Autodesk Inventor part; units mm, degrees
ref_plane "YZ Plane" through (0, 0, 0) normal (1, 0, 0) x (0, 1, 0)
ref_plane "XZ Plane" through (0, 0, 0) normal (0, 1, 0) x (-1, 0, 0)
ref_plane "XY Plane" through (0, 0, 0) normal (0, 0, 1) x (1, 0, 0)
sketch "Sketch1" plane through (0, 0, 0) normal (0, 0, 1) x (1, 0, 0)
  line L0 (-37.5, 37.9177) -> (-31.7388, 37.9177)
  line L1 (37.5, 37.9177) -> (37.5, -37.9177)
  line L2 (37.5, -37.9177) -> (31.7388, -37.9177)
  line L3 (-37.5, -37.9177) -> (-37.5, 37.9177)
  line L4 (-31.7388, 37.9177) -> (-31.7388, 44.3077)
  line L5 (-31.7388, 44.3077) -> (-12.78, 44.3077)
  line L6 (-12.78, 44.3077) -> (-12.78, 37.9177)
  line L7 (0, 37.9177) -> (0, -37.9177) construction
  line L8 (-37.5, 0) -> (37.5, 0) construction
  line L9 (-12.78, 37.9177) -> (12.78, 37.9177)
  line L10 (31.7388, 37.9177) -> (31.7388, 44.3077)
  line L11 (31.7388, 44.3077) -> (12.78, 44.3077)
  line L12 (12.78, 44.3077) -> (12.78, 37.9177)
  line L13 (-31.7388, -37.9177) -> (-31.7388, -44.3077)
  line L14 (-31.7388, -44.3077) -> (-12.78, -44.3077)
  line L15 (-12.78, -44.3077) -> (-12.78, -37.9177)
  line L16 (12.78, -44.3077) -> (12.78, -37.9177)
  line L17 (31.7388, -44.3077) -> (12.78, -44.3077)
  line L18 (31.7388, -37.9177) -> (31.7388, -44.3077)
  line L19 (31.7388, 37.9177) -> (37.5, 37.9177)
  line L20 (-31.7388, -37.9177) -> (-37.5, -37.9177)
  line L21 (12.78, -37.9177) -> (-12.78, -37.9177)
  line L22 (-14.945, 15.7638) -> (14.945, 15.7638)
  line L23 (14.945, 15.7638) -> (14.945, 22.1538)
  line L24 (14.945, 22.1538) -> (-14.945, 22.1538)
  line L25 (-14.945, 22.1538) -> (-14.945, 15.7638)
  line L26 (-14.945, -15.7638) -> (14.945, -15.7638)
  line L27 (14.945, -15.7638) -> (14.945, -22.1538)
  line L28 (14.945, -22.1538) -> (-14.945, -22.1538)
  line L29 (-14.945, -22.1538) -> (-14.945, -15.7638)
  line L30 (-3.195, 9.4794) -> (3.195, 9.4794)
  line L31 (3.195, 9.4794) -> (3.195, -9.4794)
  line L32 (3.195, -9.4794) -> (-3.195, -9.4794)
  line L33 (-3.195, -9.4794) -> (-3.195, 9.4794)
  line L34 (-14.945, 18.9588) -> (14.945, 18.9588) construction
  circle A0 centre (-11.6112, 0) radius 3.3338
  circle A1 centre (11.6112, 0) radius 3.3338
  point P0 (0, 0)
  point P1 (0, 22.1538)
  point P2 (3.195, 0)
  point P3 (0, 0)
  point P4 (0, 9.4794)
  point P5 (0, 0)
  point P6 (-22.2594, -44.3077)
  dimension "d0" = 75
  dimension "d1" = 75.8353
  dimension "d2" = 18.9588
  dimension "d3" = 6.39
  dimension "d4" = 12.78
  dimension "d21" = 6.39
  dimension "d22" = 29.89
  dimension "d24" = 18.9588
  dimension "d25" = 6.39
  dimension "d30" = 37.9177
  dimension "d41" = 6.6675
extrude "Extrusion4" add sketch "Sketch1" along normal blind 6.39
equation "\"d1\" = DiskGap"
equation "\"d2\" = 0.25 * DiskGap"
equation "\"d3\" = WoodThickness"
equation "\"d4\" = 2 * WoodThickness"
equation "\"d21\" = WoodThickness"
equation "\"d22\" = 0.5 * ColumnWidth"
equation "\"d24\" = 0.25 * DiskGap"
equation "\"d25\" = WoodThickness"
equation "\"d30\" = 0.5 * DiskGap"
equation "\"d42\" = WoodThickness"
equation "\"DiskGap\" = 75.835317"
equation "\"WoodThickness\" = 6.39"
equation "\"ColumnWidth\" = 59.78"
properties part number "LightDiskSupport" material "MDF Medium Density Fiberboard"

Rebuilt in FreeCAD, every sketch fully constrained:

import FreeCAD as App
import Part
import Sketcher
from FreeCAD import Vector
Q = App.Units.Quantity

doc = App.newDocument("Part")
params = doc.addObject("Spreadsheet::Sheet", "Params")
for row, (alias, value) in enumerate([
    ("sketch1_width", "29.89 mm"),
    ("sketch1_width2", "6.39 mm"),
    ("pad1_length", "6.39 mm"),
], start=1):
    params.set(f"A{row}", alias)
    params.set(f"B{row}", "=" + value)
    params.setAlias(f"B{row}", alias)

body = doc.addObject("PartDesign::Body", "Body")

# Sketch on XY plane
sketch1 = body.newObject("Sketcher::SketchObject", "Sketch")
sketch1.AttachmentSupport = (doc.getObject("XY_Plane"), [""])
sketch1.MapMode = "FlatFace"
sketch1.addGeometry([
    Part.LineSegment(Vector(-31.7388, 37.9177, 0), Vector(-37.5, 37.9177, 0)),  # 0
    Part.LineSegment(Vector(-37.5, 37.9177, 0), Vector(-37.5, -37.9177, 0)),  # 1
    Part.LineSegment(Vector(-37.5, -37.9177, 0), Vector(-31.7388, -37.9177, 0)),  # 2
    Part.LineSegment(Vector(-31.7388, -37.9177, 0), Vector(-31.7388, -44.3077, 0)),  # 3
    Part.LineSegment(Vector(-31.7388, -44.3077, 0), Vector(-12.78, -44.3077, 0)),  # 4
    Part.LineSegment(Vector(-12.78, -44.3077, 0), Vector(-12.78, -37.9177, 0)),  # 5
    Part.LineSegment(Vector(-12.78, -37.9177, 0), Vector(12.78, -37.9177, 0)),  # 6
    Part.LineSegment(Vector(12.78, -37.9177, 0), Vector(12.78, -44.3077, 0)),  # 7
    Part.LineSegment(Vector(12.78, -44.3077, 0), Vector(31.7388, -44.3077, 0)),  # 8
    Part.LineSegment(Vector(31.7388, -44.3077, 0), Vector(31.7388, -37.9177, 0)),  # 9
    Part.LineSegment(Vector(31.7388, -37.9177, 0), Vector(37.5, -37.9177, 0)),  # 10
    Part.LineSegment(Vector(37.5, -37.9177, 0), Vector(37.5, 37.9177, 0)),  # 11
    Part.LineSegment(Vector(37.5, 37.9177, 0), Vector(31.7388, 37.9177, 0)),  # 12
    Part.LineSegment(Vector(31.7388, 37.9177, 0), Vector(31.7388, 44.3077, 0)),  # 13
    Part.LineSegment(Vector(31.7388, 44.3077, 0), Vector(12.78, 44.3077, 0)),  # 14
    Part.LineSegment(Vector(12.78, 44.3077, 0), Vector(12.78, 37.9177, 0)),  # 15
    Part.LineSegment(Vector(12.78, 37.9177, 0), Vector(-12.78, 37.9177, 0)),  # 16
    Part.LineSegment(Vector(-12.78, 37.9177, 0), Vector(-12.78, 44.3077, 0)),  # 17
    Part.LineSegment(Vector(-12.78, 44.3077, 0), Vector(-31.7388, 44.3077, 0)),  # 18
    Part.LineSegment(Vector(-31.7388, 44.3077, 0), Vector(-31.7388, 37.9177, 0)),  # 19
    Part.LineSegment(Vector(-14.945, -22.1538, 0), Vector(-14.945, -15.7638, 0)),  # 20
    Part.LineSegment(Vector(-14.945, -15.7638, 0), Vector(14.945, -15.7638, 0)),  # 21
    Part.LineSegment(Vector(14.945, -15.7638, 0), Vector(14.945, -22.1538, 0)),  # 22
    Part.LineSegment(Vector(14.945, -22.1538, 0), Vector(-14.945, -22.1538, 0)),  # 23
    Part.Circle(Vector(-11.6112, 0, 0), Vector(0, 0, 1), 3.3338),  # 24
    Part.LineSegment(Vector(-3.195, -9.4794, 0), Vector(-3.195, 9.4794, 0)),  # 25
    Part.LineSegment(Vector(-3.195, 9.4794, 0), Vector(3.195, 9.4794, 0)),  # 26
    Part.LineSegment(Vector(3.195, 9.4794, 0), Vector(3.195, -9.4794, 0)),  # 27
    Part.LineSegment(Vector(3.195, -9.4794, 0), Vector(-3.195, -9.4794, 0)),  # 28
    Part.Circle(Vector(11.6112, 0, 0), Vector(0, 0, 1), 3.3338),  # 29
    Part.LineSegment(Vector(14.945, 15.7638, 0), Vector(-14.945, 15.7638, 0)),  # 30
    Part.LineSegment(Vector(-14.945, 15.7638, 0), Vector(-14.945, 22.1538, 0)),  # 31
    Part.LineSegment(Vector(-14.945, 22.1538, 0), Vector(14.945, 22.1538, 0)),  # 32
    Part.LineSegment(Vector(14.945, 22.1538, 0), Vector(14.945, 15.7638, 0)),  # 33
], False)
sketch1.addConstraint([
    Sketcher.Constraint("Coincident", 0, 2, 1, 1),
    Sketcher.Constraint("Coincident", 1, 2, 2, 1),
    Sketcher.Constraint("Coincident", 2, 2, 3, 1),
    Sketcher.Constraint("Coincident", 3, 2, 4, 1),
    Sketcher.Constraint("Coincident", 4, 2, 5, 1),
    Sketcher.Constraint("Coincident", 5, 2, 6, 1),
    Sketcher.Constraint("Coincident", 6, 2, 7, 1),
    Sketcher.Constraint("Coincident", 7, 2, 8, 1),
    Sketcher.Constraint("Coincident", 8, 2, 9, 1),
    Sketcher.Constraint("Coincident", 9, 2, 10, 1),
    Sketcher.Constraint("Coincident", 10, 2, 11, 1),
    Sketcher.Constraint("Coincident", 11, 2, 12, 1),
    Sketcher.Constraint("Coincident", 12, 2, 13, 1),
    Sketcher.Constraint("Coincident", 13, 2, 14, 1),
    Sketcher.Constraint("Coincident", 14, 2, 15, 1),
    Sketcher.Constraint("Coincident", 15, 2, 16, 1),
    Sketcher.Constraint("Coincident", 16, 2, 17, 1),
    Sketcher.Constraint("Coincident", 17, 2, 18, 1),
    Sketcher.Constraint("Coincident", 18, 2, 19, 1),
    Sketcher.Constraint("Coincident", 19, 2, 0, 1),
    Sketcher.Constraint("Coincident", 20, 2, 21, 1),
    Sketcher.Constraint("Coincident", 21, 2, 22, 1),
    Sketcher.Constraint("Coincident", 22, 2, 23, 1),
    Sketcher.Constraint("Coincident", 23, 2, 20, 1),
    Sketcher.Constraint("Coincident", 25, 2, 26, 1),
    Sketcher.Constraint("Coincident", 26, 2, 27, 1),
    Sketcher.Constraint("Coincident", 27, 2, 28, 1),
    Sketcher.Constraint("Coincident", 28, 2, 25, 1),
    Sketcher.Constraint("Coincident", 30, 2, 31, 1),
    Sketcher.Constraint("Coincident", 31, 2, 32, 1),
    Sketcher.Constraint("Coincident", 32, 2, 33, 1),
    Sketcher.Constraint("Coincident", 33, 2, 30, 1),
    Sketcher.Constraint("Horizontal", 0),
    Sketcher.Constraint("Vertical", 1),
    Sketcher.Constraint("Horizontal", 2),
    Sketcher.Constraint("Vertical", 3),
    Sketcher.Constraint("Horizontal", 4),
    Sketcher.Constraint("Vertical", 5),
    Sketcher.Constraint("Horizontal", 6),
    Sketcher.Constraint("Vertical", 7),
    Sketcher.Constraint("Horizontal", 8),
    Sketcher.Constraint("Vertical", 9),
    Sketcher.Constraint("Horizontal", 10),
    Sketcher.Constraint("Vertical", 11),
    Sketcher.Constraint("Horizontal", 12),
    Sketcher.Constraint("Vertical", 13),
    Sketcher.Constraint("Horizontal", 14),
    Sketcher.Constraint("Vertical", 15),
    Sketcher.Constraint("Horizontal", 16),
    Sketcher.Constraint("Vertical", 17),
    Sketcher.Constraint("Horizontal", 18),
    Sketcher.Constraint("Vertical", 19),
    Sketcher.Constraint("Vertical", 20),
    Sketcher.Constraint("Horizontal", 21),
    Sketcher.Constraint("Vertical", 22),
    Sketcher.Constraint("Horizontal", 23),
    Sketcher.Constraint("Vertical", 25),
    Sketcher.Constraint("Horizontal", 26),
    Sketcher.Constraint("Vertical", 27),
    Sketcher.Constraint("Horizontal", 28),
    Sketcher.Constraint("Horizontal", 30),
    Sketcher.Constraint("Vertical", 31),
    Sketcher.Constraint("Horizontal", 32),
    Sketcher.Constraint("Vertical", 33),
    Sketcher.Constraint("Equal", 24, 29),
    Sketcher.Constraint("Symmetric", 24, 3, 29, 3, -1, 1),
    Sketcher.Constraint("Symmetric", 0, 2, 10, 2, -1, 1),
    Sketcher.Constraint("Symmetric", 2, 2, 12, 2, -1, 1),
    Sketcher.Constraint("Symmetric", 4, 2, 14, 2, -1, 1),
    Sketcher.Constraint("Symmetric", 6, 2, 16, 2, -1, 1),
    Sketcher.Constraint("Symmetric", 8, 2, 18, 2, -1, 1),
    Sketcher.Constraint("Symmetric", 25, 2, 27, 2, -1, 1),
    Sketcher.Constraint("Symmetric", 21, 2, 30, 2, -1, 1),
    Sketcher.Constraint("Symmetric", 23, 2, 32, 2, -1, 1),
    Sketcher.Constraint("Symmetric", 4, 2, 7, 2, -2),
    Sketcher.Constraint("Symmetric", 2, 2, 9, 2, -2),
    Sketcher.Constraint("PointOnObject", 24, 3, -1),
    Sketcher.Constraint("Horizontal", 2, 2, 5, 2),
    Sketcher.Constraint("Vertical", 23, 2, 30, 2),
    Sketcher.Constraint("Equal", 28, 3),
    Sketcher.Constraint("Equal", 19, 20),
    Sketcher.Constraint("Equal", 18, 25),
    Sketcher.Constraint("DistanceX", 0, 2, 11, 2, Q("75 mm")),
    Sketcher.Constraint("Diameter", 24, Q("6.6676 mm")),
    Sketcher.Constraint("DistanceX", 21, 1, 21, 2, Q("29.89 mm")),
    Sketcher.Constraint("DistanceX", 26, 1, 26, 2, Q("6.39 mm")),
    Sketcher.Constraint("DistanceX", 4, 2, -1, 1, Q("12.78 mm")),
    Sketcher.Constraint("DistanceX", 4, 1, 4, 2, Q("18.9588 mm")),
    Sketcher.Constraint("DistanceY", 1, 2, 1, 1, Q("75.8354 mm")),
    Sketcher.Constraint("DistanceX", 2, 2, 29, 3, Q("43.35 mm")),
    Sketcher.Constraint("DistanceY", 5, 2, 20, 2, Q("22.154 mm")),
])
sketch1.setExpression("Constraints[84]", "Params.sketch1_width")
sketch1.setExpression("Constraints[85]", "Params.sketch1_width2")
pad1 = body.newObject("PartDesign::Pad", "Pad")
pad1.Profile = sketch1
pad1.setExpression("Length", "Params.pad1_length")

doc.recompute()
